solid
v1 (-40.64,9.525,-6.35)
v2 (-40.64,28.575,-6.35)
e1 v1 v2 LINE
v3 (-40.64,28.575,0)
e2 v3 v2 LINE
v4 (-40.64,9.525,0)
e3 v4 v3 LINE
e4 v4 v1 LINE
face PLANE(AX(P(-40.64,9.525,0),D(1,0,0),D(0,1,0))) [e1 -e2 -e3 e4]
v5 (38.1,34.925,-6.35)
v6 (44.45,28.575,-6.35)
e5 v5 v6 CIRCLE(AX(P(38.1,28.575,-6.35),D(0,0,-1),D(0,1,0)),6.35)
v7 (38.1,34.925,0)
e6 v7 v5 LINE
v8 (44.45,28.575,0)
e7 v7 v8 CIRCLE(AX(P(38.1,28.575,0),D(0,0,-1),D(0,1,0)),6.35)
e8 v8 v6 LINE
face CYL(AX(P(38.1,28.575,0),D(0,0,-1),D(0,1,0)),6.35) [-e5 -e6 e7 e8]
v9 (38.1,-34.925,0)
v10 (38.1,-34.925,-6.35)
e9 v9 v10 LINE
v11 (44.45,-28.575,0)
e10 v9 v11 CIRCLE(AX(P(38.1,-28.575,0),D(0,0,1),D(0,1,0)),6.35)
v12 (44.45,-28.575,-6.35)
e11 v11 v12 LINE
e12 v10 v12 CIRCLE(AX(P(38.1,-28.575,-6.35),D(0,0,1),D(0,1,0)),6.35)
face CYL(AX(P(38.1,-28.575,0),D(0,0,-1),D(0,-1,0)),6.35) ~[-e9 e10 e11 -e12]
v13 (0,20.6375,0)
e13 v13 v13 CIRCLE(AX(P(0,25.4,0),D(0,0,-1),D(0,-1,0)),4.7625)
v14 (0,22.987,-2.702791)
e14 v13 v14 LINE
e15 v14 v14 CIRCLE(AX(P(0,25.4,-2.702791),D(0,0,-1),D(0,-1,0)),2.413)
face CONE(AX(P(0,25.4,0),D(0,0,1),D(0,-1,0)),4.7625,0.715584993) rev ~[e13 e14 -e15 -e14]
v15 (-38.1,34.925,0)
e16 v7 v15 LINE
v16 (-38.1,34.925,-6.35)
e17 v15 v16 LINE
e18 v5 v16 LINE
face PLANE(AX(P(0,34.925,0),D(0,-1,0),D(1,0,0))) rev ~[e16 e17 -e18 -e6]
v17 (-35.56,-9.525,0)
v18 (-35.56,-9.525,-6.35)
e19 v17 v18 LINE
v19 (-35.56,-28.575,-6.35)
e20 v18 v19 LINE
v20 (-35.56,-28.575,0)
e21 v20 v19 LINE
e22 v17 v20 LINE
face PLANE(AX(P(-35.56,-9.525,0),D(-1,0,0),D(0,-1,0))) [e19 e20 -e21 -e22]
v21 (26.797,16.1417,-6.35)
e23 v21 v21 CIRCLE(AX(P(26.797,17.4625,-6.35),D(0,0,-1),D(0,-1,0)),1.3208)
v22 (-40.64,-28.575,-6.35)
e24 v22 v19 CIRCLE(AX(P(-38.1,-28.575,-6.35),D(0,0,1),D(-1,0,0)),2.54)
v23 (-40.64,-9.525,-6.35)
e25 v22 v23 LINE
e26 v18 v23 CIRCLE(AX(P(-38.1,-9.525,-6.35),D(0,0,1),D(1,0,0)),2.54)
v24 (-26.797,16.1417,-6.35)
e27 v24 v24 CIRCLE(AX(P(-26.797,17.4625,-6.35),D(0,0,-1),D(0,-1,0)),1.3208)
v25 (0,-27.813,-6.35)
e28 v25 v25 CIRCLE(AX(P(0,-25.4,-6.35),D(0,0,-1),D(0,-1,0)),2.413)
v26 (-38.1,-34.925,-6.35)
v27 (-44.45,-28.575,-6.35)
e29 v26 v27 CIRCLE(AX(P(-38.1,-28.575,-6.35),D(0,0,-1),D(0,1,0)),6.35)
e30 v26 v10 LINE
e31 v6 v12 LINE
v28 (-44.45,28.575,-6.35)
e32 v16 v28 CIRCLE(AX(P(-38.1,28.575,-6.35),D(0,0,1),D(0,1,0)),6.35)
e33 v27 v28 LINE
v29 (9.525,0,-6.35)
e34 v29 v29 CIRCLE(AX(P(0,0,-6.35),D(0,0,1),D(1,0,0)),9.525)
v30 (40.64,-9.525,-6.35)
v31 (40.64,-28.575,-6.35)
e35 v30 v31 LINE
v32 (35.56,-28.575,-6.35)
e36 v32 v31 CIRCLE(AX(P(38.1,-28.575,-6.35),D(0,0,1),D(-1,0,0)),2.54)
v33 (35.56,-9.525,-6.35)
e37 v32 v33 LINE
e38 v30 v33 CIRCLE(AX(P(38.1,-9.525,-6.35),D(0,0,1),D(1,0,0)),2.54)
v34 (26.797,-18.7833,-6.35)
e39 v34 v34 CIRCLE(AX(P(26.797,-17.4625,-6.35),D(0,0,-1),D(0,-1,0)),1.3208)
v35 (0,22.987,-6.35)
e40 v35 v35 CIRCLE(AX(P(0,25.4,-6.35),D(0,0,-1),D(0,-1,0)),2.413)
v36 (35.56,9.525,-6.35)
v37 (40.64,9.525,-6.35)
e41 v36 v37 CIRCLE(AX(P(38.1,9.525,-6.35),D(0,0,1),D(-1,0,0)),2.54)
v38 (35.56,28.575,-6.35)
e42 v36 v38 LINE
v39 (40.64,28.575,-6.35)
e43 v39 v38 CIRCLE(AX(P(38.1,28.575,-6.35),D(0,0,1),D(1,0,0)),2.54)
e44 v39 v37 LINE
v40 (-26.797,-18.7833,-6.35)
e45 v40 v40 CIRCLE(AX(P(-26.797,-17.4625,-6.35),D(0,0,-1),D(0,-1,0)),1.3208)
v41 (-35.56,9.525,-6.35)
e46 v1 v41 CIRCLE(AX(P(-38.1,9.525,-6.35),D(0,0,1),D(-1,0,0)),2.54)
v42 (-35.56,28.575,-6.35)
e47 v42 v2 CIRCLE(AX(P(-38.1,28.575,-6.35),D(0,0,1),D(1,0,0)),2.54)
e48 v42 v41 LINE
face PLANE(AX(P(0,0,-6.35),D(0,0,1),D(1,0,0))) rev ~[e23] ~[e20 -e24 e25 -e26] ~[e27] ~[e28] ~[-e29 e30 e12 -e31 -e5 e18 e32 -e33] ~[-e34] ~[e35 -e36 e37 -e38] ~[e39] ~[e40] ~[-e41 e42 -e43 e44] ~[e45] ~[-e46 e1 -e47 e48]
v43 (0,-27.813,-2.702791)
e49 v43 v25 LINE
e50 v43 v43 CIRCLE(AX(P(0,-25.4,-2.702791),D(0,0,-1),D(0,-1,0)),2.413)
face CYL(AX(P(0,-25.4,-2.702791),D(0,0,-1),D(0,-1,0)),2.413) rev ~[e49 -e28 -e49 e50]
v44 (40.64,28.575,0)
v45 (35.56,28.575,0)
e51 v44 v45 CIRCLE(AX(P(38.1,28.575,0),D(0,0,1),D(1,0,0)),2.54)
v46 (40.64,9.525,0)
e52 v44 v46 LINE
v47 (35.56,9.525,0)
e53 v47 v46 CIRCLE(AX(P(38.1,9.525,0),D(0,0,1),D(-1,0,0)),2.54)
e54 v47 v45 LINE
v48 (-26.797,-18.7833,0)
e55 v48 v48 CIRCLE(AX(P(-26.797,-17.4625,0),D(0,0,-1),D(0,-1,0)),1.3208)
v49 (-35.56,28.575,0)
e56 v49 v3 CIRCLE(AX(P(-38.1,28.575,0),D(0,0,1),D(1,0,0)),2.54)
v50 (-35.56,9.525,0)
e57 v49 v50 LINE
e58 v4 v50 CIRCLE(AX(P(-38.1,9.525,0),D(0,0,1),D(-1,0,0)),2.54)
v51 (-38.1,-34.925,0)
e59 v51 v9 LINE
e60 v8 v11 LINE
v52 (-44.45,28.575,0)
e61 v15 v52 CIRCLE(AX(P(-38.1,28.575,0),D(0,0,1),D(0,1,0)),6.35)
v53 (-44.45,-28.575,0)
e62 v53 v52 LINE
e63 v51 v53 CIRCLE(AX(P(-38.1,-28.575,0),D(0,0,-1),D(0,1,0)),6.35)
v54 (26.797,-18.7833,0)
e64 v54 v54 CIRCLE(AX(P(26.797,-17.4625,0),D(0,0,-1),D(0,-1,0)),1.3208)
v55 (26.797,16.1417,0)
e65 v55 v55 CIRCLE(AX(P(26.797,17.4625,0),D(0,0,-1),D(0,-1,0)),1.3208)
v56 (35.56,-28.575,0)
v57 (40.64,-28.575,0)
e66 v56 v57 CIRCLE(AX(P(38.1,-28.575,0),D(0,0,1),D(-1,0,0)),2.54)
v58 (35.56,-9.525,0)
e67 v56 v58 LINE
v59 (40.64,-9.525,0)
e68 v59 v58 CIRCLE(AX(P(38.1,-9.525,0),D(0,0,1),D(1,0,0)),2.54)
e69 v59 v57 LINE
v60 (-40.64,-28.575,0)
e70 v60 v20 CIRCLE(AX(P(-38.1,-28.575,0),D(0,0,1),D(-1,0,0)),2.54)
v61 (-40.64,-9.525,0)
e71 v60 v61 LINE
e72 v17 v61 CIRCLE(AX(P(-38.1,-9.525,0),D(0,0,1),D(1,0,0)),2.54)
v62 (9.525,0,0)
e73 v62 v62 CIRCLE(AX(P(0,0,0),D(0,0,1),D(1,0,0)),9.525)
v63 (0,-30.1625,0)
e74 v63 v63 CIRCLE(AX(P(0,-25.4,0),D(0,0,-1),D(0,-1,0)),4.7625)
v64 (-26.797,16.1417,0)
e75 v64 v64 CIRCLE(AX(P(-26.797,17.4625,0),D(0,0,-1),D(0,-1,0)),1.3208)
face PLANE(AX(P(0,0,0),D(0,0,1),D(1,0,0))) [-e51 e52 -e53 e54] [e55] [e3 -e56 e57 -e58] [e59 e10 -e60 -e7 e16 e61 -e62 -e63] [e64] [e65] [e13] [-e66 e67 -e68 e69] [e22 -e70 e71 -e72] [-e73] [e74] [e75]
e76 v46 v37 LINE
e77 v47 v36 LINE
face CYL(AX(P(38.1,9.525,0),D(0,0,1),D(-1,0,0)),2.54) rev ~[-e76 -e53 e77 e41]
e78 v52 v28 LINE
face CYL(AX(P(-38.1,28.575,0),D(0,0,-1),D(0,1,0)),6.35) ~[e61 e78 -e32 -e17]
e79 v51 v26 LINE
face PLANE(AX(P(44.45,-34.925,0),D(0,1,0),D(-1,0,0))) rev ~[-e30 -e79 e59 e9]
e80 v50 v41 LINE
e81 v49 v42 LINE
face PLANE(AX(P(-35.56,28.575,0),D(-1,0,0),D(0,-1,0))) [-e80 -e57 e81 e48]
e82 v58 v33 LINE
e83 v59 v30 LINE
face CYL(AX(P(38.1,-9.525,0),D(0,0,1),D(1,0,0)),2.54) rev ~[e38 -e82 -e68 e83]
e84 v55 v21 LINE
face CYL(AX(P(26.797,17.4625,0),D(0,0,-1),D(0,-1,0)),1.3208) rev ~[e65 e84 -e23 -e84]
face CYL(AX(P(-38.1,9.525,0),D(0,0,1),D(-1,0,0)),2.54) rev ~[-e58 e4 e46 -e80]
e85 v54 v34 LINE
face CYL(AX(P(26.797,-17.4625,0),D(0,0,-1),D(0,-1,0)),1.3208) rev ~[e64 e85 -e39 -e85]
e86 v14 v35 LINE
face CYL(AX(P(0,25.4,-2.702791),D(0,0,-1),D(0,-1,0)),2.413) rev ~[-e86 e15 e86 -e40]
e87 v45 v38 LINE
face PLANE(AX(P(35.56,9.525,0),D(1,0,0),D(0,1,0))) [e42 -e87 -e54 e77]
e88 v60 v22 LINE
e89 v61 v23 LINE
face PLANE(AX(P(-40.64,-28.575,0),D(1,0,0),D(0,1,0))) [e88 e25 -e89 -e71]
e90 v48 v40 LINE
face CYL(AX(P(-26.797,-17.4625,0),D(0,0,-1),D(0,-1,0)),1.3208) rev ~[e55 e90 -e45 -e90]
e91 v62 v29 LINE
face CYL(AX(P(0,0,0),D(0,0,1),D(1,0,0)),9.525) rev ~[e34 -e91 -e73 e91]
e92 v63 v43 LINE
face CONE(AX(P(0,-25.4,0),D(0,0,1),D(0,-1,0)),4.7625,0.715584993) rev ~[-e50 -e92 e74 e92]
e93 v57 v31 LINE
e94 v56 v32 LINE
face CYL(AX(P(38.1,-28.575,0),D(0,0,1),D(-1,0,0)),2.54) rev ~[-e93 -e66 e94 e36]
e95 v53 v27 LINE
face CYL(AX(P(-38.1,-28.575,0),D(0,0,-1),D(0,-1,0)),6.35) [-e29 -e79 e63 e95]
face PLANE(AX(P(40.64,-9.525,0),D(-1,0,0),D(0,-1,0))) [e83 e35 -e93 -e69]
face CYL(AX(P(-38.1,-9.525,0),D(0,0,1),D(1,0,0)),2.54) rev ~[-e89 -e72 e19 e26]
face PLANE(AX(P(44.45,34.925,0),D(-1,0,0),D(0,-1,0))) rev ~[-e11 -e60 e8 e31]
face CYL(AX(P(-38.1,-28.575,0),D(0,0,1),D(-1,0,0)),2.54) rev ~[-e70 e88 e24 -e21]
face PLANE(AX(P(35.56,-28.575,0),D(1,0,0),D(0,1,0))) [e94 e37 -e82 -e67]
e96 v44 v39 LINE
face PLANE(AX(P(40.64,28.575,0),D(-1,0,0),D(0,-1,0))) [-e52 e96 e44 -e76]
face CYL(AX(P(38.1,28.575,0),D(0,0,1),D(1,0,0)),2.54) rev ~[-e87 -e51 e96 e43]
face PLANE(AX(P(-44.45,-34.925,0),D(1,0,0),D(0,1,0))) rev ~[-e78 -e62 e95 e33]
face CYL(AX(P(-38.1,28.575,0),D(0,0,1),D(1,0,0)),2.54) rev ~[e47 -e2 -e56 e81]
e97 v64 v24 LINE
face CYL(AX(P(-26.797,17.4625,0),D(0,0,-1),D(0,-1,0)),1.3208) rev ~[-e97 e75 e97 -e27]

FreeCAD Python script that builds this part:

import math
import FreeCAD as App
import Part
import Sketcher
from FreeCAD import Vector
Q = App.Units.Quantity


def edges_at(feature, points):
    """Names of the edges that pass closest to the given points."""
    edges = feature.Shape.Edges
    near = lambda p: min(range(len(edges)), key=lambda i: edges[i].distToShape(Part.Vertex(*p))[0])
    return sorted({f"Edge{near(p) + 1}" for p in points})

doc = App.newDocument("Part")
params = doc.addObject("Spreadsheet::Sheet", "Params")
for row, (alias, value) in enumerate([
    ("sketch1_diameter", "2.75 in"),
    ("sketch1_diameter2", "0.75 in"),
    ("pad1_length", "0.25 in"),
    ("sketch2_diameter", "0.104 in"),
    ("hole_diameter", "0.104 in"),
    ("sketch3_diameter", "0.19 in"),
    ("hole2_diameter", "0.19 in"),
    ("hole2_csink_diameter", "0.375 in"),
    ("sketch4_radius", "0.1 in"),
    ("sketch4_radius2", "1.375 in"),
    ("sketch4_width", "1.75 in"),
    ("sketch4_height", "0.75 in"),
    ("pad2_length", "0.25 in"),
    ("fillet_radius", "0.25 in"),
], start=1):
    params.set(f"A{row}", alias)
    params.set(f"B{row}", "=" + value)
    params.setAlias(f"B{row}", alias)

body = doc.addObject("PartDesign::Body", "Body")

# Sketch on XY plane
sketch1 = body.newObject("Sketcher::SketchObject", "Sketch")
sketch1.AttachmentSupport = (doc.getObject("XY_Plane"), [""])
sketch1.MapMode = "FlatFace"
sketch1.addGeometry([
    Part.Circle(Vector(0, 0, 0), Vector(0, 0, 1), 35),
    Part.Circle(Vector(0, 0, 0), Vector(0, 0, 1), 10),
], False)
sketch1.addConstraint([
    Sketcher.Constraint("Coincident", 0, 3, -1, 1),
    Sketcher.Constraint("Coincident", 1, 3, -1, 1),
    Sketcher.Constraint("Diameter", 0, Q("2.75 in")),
    Sketcher.Constraint("Diameter", 1, Q("0.75 in")),
])
sketch1.setExpression("Constraints[2]", "Params.sketch1_diameter")
sketch1.setExpression("Constraints[3]", "Params.sketch1_diameter2")
pad1 = body.newObject("PartDesign::Pad", "Pad")
pad1.Profile = sketch1
pad1.setExpression("Length", "Params.pad1_length")
pad1.Reversed = True

# Sketch on XY plane
sketch2 = body.newObject("Sketcher::SketchObject", "Sketch001")
sketch2.AttachmentSupport = (doc.getObject("XY_Plane"), [""])
sketch2.MapMode = "FlatFace"
sketch2.addGeometry([
    Part.Circle(Vector(-26.8, -17.5, 0), Vector(0, 0, 1), 1.3),
    Part.Circle(Vector(-26.8, 17.5, 0), Vector(0, 0, 1), 1.3),
    Part.Circle(Vector(26.8, 17.5, 0), Vector(0, 0, 1), 1.3),
    Part.Circle(Vector(26.8, -17.5, 0), Vector(0, 0, 1), 1.3),
], False)
sketch2.addConstraint([
    Sketcher.Constraint("Equal", 0, 1),
    Sketcher.Constraint("Equal", 1, 2),
    Sketcher.Constraint("Equal", 2, 3),
    Sketcher.Constraint("Symmetric", 0, 3, 2, 3, -1, 1),
    Sketcher.Constraint("Symmetric", 1, 3, 3, 3, -1, 1),
    Sketcher.Constraint("Symmetric", 1, 3, 2, 3, -2),
    Sketcher.Constraint("Diameter", 0, Q("0.104 in")),
    Sketcher.Constraint("DistanceX", 1, 3, 2, 3, Q("2.11 in")),
    Sketcher.Constraint("DistanceY", 0, 3, -1, 1, Q("0.6875 in")),
])
sketch2.setExpression("Constraints[6]", "Params.sketch2_diameter")
doc.recompute()
hole = body.newObject("PartDesign::Hole", "Hole")
hole.Profile = sketch2
hole.ThreadType = "None"
hole.setExpression("Diameter", "Params.hole_diameter")
hole.DepthType = "ThroughAll"

# Sketch on XY plane
sketch3 = body.newObject("Sketcher::SketchObject", "Sketch002")
sketch3.AttachmentSupport = (doc.getObject("XY_Plane"), [""])
sketch3.MapMode = "FlatFace"
sketch3.addGeometry([
    Part.Circle(Vector(0, 25.4, 0), Vector(0, 0, 1), 2.4),
    Part.Circle(Vector(0, -25.4, 0), Vector(0, 0, 1), 2.4),
], False)
sketch3.addConstraint([
    Sketcher.Constraint("Equal", 0, 1),
    Sketcher.Constraint("Symmetric", 0, 3, 1, 3, -1, 1),
    Sketcher.Constraint("PointOnObject", 0, 3, -2),
    Sketcher.Constraint("Diameter", 0, Q("0.19 in")),
    Sketcher.Constraint("DistanceY", -1, 1, 0, 3, Q("1 in")),
])
sketch3.setExpression("Constraints[3]", "Params.sketch3_diameter")
doc.recompute()
hole2 = body.newObject("PartDesign::Hole", "Hole001")
hole2.Profile = sketch3
hole2.ThreadType = "None"
hole2.setExpression("Diameter", "Params.hole2_diameter")
hole2.DepthType = "ThroughAll"
hole2.HoleCutType = "Countersink"
hole2.setExpression("HoleCutDiameter", "Params.hole2_csink_diameter")
hole2.HoleCutCountersinkAngle = 82

# Sketch on XY plane
sketch4 = body.newObject("Sketcher::SketchObject", "Sketch003")
sketch4.AttachmentSupport = (doc.getObject("XY_Plane"), [""])
sketch4.MapMode = "FlatFace"
sketch4.addGeometry([
    Part.ArcOfCircle(Part.Circle(Vector(0, 0, 0), Vector(0, 0, 1), 34.9), math.radians(-90), math.radians(90)),  # 0
    Part.LineSegment(Vector(0, -34.9, 0), Vector(44.5, -34.9, 0)),  # 1
    Part.LineSegment(Vector(44.5, -34.9, 0), Vector(44.5, 34.9, 0)),  # 2
    Part.LineSegment(Vector(44.5, 34.9, 0), Vector(0, 34.9, 0)),  # 3
    Part.LineSegment(Vector(35.6, -28.6, 0), Vector(35.6, -9.5, 0)),  # 4
    Part.ArcOfCircle(Part.Circle(Vector(38.1, -9.5, 0), Vector(0, 0, 1), 2.5), math.radians(0), math.radians(180)),  # 5
    Part.LineSegment(Vector(40.6, -9.5, 0), Vector(40.6, -28.6, 0)),  # 6
    Part.ArcOfCircle(Part.Circle(Vector(38.1, -28.6, 0), Vector(0, 0, 1), 2.5), math.radians(180), math.radians(360)),  # 7
    Part.LineSegment(Vector(35.6, 9.5, 0), Vector(35.6, 28.6, 0)),  # 8
    Part.ArcOfCircle(Part.Circle(Vector(38.1, 28.6, 0), Vector(0, 0, 1), 2.5), math.radians(0), math.radians(180)),  # 9
    Part.LineSegment(Vector(40.6, 28.6, 0), Vector(40.6, 9.5, 0)),  # 10
    Part.ArcOfCircle(Part.Circle(Vector(38.1, 9.5, 0), Vector(0, 0, 1), 2.5), math.radians(180), math.radians(360)),  # 11
    Part.ArcOfCircle(Part.Circle(Vector(0, 0, 0), Vector(0, 0, 1), 34.9), math.radians(90), math.radians(270)),  # 12
    Part.LineSegment(Vector(0, 34.9, 0), Vector(-44.5, 34.9, 0)),  # 13
    Part.LineSegment(Vector(-44.5, 34.9, 0), Vector(-44.5, -34.9, 0)),  # 14
    Part.LineSegment(Vector(-44.5, -34.9, 0), Vector(0, -34.9, 0)),  # 15
    Part.LineSegment(Vector(-40.6, -28.6, 0), Vector(-40.6, -9.5, 0)),  # 16
    Part.ArcOfCircle(Part.Circle(Vector(-38.1, -9.5, 0), Vector(0, 0, 1), 2.5), math.radians(0), math.radians(180)),  # 17
    Part.LineSegment(Vector(-35.6, -9.5, 0), Vector(-35.6, -28.6, 0)),  # 18
    Part.ArcOfCircle(Part.Circle(Vector(-38.1, -28.6, 0), Vector(0, 0, 1), 2.5), math.radians(180), math.radians(360)),  # 19
    Part.LineSegment(Vector(-40.6, 9.5, 0), Vector(-40.6, 28.6, 0)),  # 20
    Part.ArcOfCircle(Part.Circle(Vector(-38.1, 28.6, 0), Vector(0, 0, 1), 2.5), math.radians(0), math.radians(180)),  # 21
    Part.LineSegment(Vector(-35.6, 28.6, 0), Vector(-35.6, 9.5, 0)),  # 22
    Part.ArcOfCircle(Part.Circle(Vector(-38.1, 9.5, 0), Vector(0, 0, 1), 2.5), math.radians(180), math.radians(360)),  # 23
], False)
sketch4.addConstraint([
    Sketcher.Constraint("Tangent", 0, 1, 1, 1),
    Sketcher.Constraint("Coincident", 1, 2, 2, 1),
    Sketcher.Constraint("Coincident", 2, 2, 3, 1),
    Sketcher.Constraint("Tangent", 3, 2, 0, 2),
    Sketcher.Constraint("Tangent", 4, 2, 5, 2),
    Sketcher.Constraint("Tangent", 5, 1, 6, 1),
    Sketcher.Constraint("Tangent", 6, 2, 7, 2),
    Sketcher.Constraint("Tangent", 7, 1, 4, 1),
    Sketcher.Constraint("Tangent", 8, 2, 9, 2),
    Sketcher.Constraint("Tangent", 9, 1, 10, 1),
    Sketcher.Constraint("Tangent", 10, 2, 11, 2),
    Sketcher.Constraint("Tangent", 11, 1, 8, 1),
    Sketcher.Constraint("Tangent", 12, 1, 13, 1),
    Sketcher.Constraint("Coincident", 13, 2, 14, 1),
    Sketcher.Constraint("Coincident", 14, 2, 15, 1),
    Sketcher.Constraint("Tangent", 15, 2, 12, 2),
    Sketcher.Constraint("Tangent", 16, 2, 17, 2),
    Sketcher.Constraint("Tangent", 17, 1, 18, 1),
    Sketcher.Constraint("Tangent", 18, 2, 19, 2),
    Sketcher.Constraint("Tangent", 19, 1, 16, 1),
    Sketcher.Constraint("Tangent", 20, 2, 21, 2),
    Sketcher.Constraint("Tangent", 21, 1, 22, 1),
    Sketcher.Constraint("Tangent", 22, 2, 23, 2),
    Sketcher.Constraint("Tangent", 23, 1, 20, 1),
    Sketcher.Constraint("Horizontal", 1),
    Sketcher.Constraint("Vertical", 2),
    Sketcher.Constraint("Horizontal", 3),
    Sketcher.Constraint("Vertical", 4),
    Sketcher.Constraint("Vertical", 6),
    Sketcher.Constraint("Vertical", 8),
    Sketcher.Constraint("Vertical", 10),
    Sketcher.Constraint("Horizontal", 13),
    Sketcher.Constraint("Vertical", 14),
    Sketcher.Constraint("Horizontal", 15),
    Sketcher.Constraint("Vertical", 16),
    Sketcher.Constraint("Vertical", 18),
    Sketcher.Constraint("Vertical", 20),
    Sketcher.Constraint("Vertical", 22),
    Sketcher.Constraint("Coincident", 0, 3, -1, 1),
    Sketcher.Constraint("Coincident", 12, 3, -1, 1),
    Sketcher.Constraint("Equal", 7, 9),
    Sketcher.Constraint("Equal", 0, 12),
    Sketcher.Constraint("Equal", 11, 17),
    Sketcher.Constraint("Equal", 19, 21),
    Sketcher.Constraint("Symmetric", 11, 3, 17, 3, -1, 1),
    Sketcher.Constraint("Symmetric", 7, 3, 21, 3, -1, 1),
    Sketcher.Constraint("Symmetric", 5, 3, 17, 3, -2),
    Sketcher.Constraint("Horizontal", 7, 3, 19, 3),
    Sketcher.Constraint("Horizontal", 9, 3, 21, 3),
    Sketcher.Constraint("Horizontal", 11, 3, 23, 3),
    Sketcher.Constraint("Equal", 3, 13),
    Sketcher.Constraint("Radius", 5, Q("0.1 in")),
    Sketcher.Constraint("Radius", 0, Q("1.375 in")),
    Sketcher.Constraint("DistanceX", 17, 3, 5, 3, Q("3 in")),
    Sketcher.Constraint("DistanceY", 0, 1, 17, 3, Q("1 in")),
    Sketcher.Constraint("DistanceX", 1, 1, 1, 2, Q("1.75 in")),
    Sketcher.Constraint("DistanceY", 4, 1, 4, 2, Q("0.75 in")),
])
sketch4.setExpression("Constraints[51]", "Params.sketch4_radius")
sketch4.setExpression("Constraints[52]", "Params.sketch4_radius2")
sketch4.setExpression("Constraints[55]", "Params.sketch4_width")
sketch4.setExpression("Constraints[56]", "Params.sketch4_height")
pad2 = body.newObject("PartDesign::Pad", "Pad001")
pad2.Profile = sketch4
pad2.setExpression("Length", "Params.pad2_length")
pad2.Reversed = True
doc.recompute()

fillet = body.newObject("PartDesign::Fillet", "Fillet")
fillet.Base = (pad2, edges_at(pad2, [
    (-44.45, 34.925, -3.175),
    (44.45, 34.925, -3.175),
    (44.45, -34.925, -3.175),
    (-44.45, -34.925, -3.175),
]))
fillet.setExpression("Radius", "Params.fillet_radius")

doc.recompute()
